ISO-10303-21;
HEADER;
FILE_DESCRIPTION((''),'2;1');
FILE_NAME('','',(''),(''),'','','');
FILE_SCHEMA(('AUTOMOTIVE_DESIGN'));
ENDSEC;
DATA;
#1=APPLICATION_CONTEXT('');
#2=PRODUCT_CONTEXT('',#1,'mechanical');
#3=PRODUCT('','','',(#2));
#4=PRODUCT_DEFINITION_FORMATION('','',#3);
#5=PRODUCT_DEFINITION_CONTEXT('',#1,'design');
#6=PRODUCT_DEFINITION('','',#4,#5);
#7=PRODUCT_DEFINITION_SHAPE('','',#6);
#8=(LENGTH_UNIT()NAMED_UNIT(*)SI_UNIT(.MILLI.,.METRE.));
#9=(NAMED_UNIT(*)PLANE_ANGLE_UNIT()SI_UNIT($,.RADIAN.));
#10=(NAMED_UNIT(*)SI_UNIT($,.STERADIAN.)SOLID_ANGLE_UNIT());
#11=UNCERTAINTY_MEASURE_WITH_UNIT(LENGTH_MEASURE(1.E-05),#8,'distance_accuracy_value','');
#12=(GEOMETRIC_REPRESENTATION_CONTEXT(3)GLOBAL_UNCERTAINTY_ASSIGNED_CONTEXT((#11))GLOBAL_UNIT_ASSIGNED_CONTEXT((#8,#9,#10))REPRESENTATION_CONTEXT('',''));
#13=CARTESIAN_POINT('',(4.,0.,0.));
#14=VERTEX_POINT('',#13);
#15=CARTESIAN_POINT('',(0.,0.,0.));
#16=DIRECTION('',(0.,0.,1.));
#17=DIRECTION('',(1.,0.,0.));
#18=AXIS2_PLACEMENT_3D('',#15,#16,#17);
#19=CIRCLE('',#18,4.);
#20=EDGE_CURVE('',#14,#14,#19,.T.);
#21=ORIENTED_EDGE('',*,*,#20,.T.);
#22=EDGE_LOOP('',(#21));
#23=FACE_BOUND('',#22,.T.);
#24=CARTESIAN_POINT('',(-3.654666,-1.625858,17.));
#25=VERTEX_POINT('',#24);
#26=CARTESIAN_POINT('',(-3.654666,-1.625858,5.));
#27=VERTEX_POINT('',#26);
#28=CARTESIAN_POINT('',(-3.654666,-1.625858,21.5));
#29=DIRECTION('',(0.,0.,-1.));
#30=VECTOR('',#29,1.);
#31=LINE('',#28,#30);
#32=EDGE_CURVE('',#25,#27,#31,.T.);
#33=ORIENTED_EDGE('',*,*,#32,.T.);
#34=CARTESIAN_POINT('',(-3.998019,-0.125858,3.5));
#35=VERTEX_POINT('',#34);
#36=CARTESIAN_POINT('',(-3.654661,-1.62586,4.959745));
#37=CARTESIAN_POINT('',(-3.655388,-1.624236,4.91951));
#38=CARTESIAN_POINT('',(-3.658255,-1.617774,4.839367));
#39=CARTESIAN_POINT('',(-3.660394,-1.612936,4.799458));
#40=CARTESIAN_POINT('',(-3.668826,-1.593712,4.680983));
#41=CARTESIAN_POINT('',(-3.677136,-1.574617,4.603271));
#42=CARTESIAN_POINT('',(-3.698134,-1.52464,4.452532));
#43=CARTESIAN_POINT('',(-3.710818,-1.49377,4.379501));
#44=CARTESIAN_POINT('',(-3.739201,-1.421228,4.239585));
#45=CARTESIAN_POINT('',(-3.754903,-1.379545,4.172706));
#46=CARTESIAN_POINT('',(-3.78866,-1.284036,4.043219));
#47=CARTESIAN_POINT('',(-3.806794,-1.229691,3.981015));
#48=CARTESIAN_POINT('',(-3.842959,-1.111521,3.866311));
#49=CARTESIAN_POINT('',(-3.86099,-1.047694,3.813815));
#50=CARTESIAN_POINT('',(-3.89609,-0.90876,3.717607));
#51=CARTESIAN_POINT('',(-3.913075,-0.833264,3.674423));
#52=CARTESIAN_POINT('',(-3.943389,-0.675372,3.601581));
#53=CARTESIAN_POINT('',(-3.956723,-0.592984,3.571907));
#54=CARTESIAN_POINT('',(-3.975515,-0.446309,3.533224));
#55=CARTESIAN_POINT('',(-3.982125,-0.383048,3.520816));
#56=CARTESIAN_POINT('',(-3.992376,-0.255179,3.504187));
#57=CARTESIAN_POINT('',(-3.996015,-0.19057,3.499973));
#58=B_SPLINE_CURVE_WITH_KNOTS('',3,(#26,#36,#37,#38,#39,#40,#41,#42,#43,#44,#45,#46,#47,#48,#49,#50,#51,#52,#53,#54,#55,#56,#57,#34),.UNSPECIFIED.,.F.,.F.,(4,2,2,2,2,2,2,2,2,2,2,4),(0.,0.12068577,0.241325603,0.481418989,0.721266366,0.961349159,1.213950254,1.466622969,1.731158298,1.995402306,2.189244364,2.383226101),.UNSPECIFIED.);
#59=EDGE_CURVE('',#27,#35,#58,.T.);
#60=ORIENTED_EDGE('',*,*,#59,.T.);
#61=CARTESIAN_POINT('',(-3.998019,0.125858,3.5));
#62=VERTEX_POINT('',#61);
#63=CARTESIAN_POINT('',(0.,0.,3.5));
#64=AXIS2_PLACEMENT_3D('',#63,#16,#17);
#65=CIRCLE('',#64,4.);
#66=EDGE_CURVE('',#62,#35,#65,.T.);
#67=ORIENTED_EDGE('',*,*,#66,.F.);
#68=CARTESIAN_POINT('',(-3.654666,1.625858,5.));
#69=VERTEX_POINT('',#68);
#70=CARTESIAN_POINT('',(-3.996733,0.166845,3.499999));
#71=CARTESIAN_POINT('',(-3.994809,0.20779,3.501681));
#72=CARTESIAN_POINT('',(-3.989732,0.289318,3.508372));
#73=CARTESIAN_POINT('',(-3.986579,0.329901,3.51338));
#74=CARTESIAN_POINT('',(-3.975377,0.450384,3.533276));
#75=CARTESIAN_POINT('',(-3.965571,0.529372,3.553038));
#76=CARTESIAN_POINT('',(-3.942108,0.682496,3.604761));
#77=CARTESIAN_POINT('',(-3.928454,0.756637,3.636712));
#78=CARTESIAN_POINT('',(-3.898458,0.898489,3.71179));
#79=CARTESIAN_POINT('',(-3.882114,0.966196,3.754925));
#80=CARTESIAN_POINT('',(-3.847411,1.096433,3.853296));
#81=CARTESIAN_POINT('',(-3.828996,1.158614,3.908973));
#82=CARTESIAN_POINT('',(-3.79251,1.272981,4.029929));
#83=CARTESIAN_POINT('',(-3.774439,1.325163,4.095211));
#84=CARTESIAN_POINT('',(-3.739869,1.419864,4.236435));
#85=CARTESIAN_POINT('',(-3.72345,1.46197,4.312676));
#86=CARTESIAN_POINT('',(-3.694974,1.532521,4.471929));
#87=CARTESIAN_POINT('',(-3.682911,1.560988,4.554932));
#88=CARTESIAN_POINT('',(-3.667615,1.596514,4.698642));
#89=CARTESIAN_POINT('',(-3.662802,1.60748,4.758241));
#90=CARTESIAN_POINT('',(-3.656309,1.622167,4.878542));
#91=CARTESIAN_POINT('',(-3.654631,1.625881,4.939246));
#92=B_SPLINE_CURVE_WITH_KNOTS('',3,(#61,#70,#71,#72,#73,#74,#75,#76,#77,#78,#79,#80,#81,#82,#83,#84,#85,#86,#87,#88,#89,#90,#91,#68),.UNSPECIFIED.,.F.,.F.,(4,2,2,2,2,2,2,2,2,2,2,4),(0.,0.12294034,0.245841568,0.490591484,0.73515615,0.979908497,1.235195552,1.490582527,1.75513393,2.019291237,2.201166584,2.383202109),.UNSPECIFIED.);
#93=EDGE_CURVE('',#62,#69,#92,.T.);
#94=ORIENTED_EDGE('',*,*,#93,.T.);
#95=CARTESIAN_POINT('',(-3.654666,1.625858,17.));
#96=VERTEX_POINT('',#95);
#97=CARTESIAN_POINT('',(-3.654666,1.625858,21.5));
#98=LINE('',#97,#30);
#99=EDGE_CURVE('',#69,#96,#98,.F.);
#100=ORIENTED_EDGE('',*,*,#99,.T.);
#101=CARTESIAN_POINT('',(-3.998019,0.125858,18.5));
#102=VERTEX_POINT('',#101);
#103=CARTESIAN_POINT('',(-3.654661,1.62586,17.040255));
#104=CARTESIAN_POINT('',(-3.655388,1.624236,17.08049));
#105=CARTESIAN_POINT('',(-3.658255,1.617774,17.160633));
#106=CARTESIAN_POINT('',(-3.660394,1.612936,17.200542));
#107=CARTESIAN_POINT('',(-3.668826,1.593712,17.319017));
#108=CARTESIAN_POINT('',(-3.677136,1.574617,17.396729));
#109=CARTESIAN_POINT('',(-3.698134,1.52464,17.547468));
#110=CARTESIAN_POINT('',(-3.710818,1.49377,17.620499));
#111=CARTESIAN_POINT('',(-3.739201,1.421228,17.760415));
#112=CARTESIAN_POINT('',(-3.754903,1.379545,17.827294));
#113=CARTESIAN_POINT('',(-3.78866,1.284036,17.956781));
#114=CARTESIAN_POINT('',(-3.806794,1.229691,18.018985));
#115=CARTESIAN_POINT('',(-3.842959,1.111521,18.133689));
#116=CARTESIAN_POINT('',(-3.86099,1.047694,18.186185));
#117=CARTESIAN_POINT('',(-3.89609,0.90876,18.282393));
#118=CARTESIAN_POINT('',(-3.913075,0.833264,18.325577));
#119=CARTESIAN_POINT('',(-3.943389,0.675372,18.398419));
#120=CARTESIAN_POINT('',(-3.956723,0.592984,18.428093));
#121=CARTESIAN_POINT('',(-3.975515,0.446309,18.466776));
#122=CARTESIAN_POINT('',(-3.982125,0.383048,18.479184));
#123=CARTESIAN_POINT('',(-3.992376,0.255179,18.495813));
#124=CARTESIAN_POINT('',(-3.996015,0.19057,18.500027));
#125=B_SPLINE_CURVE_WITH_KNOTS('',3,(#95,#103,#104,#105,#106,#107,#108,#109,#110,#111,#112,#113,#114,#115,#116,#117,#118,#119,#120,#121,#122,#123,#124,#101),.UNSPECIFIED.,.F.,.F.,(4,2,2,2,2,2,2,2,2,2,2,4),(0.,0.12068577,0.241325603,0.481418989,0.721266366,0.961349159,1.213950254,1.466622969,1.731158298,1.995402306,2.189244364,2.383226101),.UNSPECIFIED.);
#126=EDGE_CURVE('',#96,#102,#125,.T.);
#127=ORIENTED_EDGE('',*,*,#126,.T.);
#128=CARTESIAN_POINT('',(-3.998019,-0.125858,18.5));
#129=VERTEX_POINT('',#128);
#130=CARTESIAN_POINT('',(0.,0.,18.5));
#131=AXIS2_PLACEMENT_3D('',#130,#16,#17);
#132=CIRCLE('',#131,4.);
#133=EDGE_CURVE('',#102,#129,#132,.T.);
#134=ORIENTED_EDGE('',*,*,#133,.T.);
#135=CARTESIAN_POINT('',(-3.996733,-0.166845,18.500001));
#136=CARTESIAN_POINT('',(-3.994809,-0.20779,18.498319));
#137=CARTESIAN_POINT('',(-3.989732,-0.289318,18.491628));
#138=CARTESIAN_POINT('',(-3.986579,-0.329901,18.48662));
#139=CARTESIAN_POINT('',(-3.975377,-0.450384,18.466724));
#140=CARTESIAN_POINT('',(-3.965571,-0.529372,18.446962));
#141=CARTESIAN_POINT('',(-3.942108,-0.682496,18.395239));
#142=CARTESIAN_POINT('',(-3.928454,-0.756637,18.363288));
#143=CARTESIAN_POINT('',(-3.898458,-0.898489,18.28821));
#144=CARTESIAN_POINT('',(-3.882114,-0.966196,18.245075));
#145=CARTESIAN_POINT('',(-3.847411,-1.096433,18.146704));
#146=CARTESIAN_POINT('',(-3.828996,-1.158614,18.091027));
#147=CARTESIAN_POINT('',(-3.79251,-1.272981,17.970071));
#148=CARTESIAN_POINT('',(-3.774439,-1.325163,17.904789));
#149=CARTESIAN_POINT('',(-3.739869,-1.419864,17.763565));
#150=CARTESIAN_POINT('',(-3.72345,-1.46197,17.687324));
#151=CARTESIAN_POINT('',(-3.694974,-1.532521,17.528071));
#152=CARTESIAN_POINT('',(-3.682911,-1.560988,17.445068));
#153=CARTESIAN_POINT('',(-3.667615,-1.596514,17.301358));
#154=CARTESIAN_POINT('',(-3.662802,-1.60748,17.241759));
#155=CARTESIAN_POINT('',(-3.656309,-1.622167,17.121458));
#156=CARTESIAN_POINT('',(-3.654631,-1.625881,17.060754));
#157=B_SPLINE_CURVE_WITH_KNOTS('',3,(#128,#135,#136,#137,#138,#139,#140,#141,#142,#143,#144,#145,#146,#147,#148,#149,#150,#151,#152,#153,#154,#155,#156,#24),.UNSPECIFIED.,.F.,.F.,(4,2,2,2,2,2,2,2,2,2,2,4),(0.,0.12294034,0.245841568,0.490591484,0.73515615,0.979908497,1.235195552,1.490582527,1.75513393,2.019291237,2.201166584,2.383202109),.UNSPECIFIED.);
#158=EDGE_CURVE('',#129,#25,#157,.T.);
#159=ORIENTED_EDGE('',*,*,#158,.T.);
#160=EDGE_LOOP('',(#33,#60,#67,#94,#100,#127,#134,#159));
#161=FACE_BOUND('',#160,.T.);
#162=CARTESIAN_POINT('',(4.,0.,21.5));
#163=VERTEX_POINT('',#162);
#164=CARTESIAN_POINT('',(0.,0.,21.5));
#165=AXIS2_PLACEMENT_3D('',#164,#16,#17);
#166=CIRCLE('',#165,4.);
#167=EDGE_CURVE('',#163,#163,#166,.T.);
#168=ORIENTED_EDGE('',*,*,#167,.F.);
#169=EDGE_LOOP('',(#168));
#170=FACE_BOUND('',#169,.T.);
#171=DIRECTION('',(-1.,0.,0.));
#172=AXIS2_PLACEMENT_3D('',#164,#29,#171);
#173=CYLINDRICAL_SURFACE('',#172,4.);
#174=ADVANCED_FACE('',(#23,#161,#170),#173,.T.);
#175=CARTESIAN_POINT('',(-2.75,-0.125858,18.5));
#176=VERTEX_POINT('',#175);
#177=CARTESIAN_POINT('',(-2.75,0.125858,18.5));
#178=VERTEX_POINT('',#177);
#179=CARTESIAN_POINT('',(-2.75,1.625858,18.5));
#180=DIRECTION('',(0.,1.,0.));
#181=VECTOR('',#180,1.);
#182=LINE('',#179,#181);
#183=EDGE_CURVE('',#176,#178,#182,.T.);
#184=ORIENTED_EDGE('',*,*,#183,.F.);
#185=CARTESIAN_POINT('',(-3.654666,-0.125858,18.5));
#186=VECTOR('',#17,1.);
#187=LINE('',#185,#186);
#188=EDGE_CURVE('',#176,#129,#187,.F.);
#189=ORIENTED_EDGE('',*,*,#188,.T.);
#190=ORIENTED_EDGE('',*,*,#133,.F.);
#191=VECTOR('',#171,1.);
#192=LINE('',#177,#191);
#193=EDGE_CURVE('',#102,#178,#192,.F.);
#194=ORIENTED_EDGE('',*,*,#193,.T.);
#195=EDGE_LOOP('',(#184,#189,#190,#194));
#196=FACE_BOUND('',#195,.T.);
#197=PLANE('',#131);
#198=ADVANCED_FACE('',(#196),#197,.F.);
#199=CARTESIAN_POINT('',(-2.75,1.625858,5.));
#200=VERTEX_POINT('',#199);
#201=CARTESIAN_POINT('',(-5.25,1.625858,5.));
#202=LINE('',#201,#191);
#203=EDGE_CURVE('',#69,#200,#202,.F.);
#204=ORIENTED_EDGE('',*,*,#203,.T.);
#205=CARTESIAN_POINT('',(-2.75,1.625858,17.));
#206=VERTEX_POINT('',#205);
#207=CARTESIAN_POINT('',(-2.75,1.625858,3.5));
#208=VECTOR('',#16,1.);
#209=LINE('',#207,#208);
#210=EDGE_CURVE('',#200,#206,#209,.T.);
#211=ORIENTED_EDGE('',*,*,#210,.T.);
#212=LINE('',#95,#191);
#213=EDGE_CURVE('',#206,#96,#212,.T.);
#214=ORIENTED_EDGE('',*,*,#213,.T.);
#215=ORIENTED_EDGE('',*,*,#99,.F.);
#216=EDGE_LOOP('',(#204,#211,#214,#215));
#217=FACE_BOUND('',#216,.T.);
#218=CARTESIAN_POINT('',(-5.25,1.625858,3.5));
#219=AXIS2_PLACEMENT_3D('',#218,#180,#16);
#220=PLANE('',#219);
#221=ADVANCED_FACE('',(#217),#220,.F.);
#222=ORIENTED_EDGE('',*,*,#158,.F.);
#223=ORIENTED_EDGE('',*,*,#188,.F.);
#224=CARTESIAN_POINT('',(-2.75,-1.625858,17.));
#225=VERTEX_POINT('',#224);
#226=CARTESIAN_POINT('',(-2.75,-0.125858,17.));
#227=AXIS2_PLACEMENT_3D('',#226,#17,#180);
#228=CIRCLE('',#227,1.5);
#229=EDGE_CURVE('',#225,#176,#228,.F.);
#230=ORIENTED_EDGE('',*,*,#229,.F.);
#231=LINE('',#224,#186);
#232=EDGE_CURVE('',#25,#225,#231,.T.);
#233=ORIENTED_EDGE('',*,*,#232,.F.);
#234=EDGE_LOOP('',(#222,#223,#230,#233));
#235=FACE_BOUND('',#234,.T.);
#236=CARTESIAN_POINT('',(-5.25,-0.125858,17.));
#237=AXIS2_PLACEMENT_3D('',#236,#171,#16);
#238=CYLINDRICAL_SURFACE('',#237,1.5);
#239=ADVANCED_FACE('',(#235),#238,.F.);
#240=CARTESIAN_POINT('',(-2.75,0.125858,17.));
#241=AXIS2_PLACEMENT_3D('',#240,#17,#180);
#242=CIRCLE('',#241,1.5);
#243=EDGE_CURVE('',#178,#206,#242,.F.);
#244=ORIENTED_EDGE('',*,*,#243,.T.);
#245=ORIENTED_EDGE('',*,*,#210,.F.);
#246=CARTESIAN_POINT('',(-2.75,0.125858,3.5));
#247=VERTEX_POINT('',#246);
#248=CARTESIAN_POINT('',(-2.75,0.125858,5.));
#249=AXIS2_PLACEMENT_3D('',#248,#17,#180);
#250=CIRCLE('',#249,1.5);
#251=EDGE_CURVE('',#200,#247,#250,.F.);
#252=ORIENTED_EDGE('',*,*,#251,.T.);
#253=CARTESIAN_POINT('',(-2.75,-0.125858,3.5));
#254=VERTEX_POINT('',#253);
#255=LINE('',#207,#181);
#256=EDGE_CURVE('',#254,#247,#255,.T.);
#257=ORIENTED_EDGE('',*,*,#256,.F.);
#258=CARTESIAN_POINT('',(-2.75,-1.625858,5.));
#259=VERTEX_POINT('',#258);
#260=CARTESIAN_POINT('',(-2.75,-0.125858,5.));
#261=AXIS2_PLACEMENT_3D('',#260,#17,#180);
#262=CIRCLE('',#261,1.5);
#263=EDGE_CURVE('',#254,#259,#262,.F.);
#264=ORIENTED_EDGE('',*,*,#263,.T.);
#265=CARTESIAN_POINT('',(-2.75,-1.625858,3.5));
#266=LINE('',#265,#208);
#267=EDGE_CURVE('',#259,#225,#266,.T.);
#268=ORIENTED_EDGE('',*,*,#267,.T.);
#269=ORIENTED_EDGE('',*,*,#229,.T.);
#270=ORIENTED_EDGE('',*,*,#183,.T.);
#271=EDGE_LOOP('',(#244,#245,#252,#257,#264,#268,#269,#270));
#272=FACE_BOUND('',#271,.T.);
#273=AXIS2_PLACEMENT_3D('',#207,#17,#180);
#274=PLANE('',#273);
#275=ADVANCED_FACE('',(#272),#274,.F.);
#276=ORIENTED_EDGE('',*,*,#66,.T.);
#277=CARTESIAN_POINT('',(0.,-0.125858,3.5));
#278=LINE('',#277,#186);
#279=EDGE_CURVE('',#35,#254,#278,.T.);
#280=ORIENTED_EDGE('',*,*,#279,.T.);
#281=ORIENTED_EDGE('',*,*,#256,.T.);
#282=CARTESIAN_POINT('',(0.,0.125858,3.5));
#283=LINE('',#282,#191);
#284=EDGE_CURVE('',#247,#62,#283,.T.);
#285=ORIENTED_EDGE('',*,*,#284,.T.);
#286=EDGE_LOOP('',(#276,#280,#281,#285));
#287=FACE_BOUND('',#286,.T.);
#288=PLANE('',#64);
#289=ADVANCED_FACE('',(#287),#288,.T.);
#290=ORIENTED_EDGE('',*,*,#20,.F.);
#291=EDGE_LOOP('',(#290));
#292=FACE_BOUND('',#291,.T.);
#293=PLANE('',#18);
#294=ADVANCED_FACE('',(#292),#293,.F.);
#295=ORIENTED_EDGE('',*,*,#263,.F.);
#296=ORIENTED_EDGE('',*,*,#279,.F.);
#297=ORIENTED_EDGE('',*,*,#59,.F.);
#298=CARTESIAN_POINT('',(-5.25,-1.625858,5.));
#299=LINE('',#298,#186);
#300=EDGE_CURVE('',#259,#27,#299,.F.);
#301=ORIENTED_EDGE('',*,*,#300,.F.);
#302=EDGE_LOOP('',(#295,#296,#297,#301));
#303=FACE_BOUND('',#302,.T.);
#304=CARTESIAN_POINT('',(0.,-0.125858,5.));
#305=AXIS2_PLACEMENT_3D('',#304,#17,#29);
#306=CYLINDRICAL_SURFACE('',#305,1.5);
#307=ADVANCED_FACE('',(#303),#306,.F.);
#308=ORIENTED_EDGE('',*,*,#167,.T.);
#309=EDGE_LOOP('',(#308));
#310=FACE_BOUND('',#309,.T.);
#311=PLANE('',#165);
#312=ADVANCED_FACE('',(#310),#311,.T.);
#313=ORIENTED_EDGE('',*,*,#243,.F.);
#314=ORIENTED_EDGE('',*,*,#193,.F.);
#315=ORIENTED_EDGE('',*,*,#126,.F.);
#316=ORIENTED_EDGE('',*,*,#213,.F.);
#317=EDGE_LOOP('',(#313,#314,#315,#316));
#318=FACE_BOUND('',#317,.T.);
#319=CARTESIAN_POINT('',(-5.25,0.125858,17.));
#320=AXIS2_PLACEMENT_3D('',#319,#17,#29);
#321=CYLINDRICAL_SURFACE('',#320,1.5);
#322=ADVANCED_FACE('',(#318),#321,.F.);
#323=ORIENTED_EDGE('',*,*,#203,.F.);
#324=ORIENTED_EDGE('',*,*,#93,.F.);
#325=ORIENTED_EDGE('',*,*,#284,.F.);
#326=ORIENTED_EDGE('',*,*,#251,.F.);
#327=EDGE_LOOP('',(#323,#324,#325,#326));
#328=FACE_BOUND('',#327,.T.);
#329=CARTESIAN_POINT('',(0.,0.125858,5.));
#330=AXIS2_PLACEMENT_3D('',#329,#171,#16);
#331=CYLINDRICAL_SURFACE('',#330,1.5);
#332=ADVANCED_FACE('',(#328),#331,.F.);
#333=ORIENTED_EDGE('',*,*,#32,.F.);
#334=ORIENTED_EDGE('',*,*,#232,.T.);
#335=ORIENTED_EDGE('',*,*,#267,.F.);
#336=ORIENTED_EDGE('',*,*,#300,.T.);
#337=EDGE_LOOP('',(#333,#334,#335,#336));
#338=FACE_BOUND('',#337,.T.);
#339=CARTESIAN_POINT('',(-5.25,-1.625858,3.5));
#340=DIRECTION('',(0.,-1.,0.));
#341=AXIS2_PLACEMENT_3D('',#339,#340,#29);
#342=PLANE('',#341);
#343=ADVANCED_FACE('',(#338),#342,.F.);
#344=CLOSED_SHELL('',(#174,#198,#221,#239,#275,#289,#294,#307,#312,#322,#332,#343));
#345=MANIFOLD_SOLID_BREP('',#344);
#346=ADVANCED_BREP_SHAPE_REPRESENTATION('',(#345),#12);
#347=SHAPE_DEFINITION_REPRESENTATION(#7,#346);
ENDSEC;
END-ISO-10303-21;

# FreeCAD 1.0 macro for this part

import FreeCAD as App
import Part
import Sketcher


def edges_at(feature, points):
    """Names of the edges that pass closest to the given points."""
    edges = feature.Shape.Edges
    near = lambda p: min(range(len(edges)), key=lambda i: edges[i].distToShape(Part.Vertex(*p))[0])
    return sorted({f"Edge{near(p) + 1}" for p in points})


def add_polygon(sketch, points):
    """Adds a closed chain of lines whose ends are joined by coincident constraints."""
    first, n = sketch.GeometryCount, len(points)
    for a, b in zip(points, points[1:] + points[:1]):
        sketch.addGeometry(Part.LineSegment(App.Vector(*a, 0), App.Vector(*b, 0)), False)
    for i in range(n):
        sketch.addConstraint(Sketcher.Constraint("Coincident", first + i, 2, first + (i + 1) % n, 1))

doc = App.newDocument("Part")
body = doc.addObject("PartDesign::Body", "Body")

sketch1 = body.newObject("Sketcher::SketchObject", "Sketch")
sketch1.AttachmentSupport = (doc.getObject("XY_Plane"), [""])
sketch1.MapMode = "FlatFace"
sketch1.addGeometry(Part.Circle(App.Vector(0, 0, 0), App.Vector(0, 0, 1), 4), False)
sketch1.addConstraint([
    Sketcher.Constraint("Coincident", 0, 3, -1, 1),
    Sketcher.Constraint("Diameter", 0, 8.0),
])
pad1 = body.newObject("PartDesign::Pad", "Pad")
pad1.Profile = sketch1
pad1.Length = 21.5

sketch2 = body.newObject("Sketcher::SketchObject", "Sketch001")
sketch2.AttachmentSupport = (doc.getObject("XY_Plane"), [""])
sketch2.MapMode = "FlatFace"
sketch2.AttachmentOffset = App.Placement(App.Vector(0, 0, 18.5), App.Rotation())
add_polygon(sketch2, [(-5.3, 1.6), (-5.3, -1.6), (-2.7, -1.6), (-2.7, 1.6)])
sketch2.addConstraint([
    Sketcher.Constraint("Vertical", 0),
    Sketcher.Constraint("Horizontal", 1),
    Sketcher.Constraint("Vertical", 2),
    Sketcher.Constraint("Horizontal", 3),
    Sketcher.Constraint("DistanceX", 1, 1, 1, 2, 2.5),
    Sketcher.Constraint("DistanceX", 0, 2, -1, 1, 5.25),
    Sketcher.Constraint("DistanceY", 0, 2, 0, 1, 3.251716),
    Sketcher.Constraint("DistanceY", 0, 2, -1, 1, 1.625858),
])
pocket1 = body.newObject("PartDesign::Pocket", "Pocket")
pocket1.Profile = sketch2
pocket1.Length = 15
doc.recompute()

fillet = body.newObject("PartDesign::Fillet", "Fillet")
fillet.Base = (pocket1, edges_at(pocket1, [(-3.202, -1.626, 3.5), (-3.202, 1.626, 3.5)]))
fillet.Radius = 1.5
doc.recompute()

fillet2 = body.newObject("PartDesign::Fillet", "Fillet001")
fillet2.Base = (fillet, edges_at(fillet, [(-3.202, 1.626, 18.5), (-3.202, -1.626, 18.5)]))
fillet2.Radius = 1.5

doc.recompute()
